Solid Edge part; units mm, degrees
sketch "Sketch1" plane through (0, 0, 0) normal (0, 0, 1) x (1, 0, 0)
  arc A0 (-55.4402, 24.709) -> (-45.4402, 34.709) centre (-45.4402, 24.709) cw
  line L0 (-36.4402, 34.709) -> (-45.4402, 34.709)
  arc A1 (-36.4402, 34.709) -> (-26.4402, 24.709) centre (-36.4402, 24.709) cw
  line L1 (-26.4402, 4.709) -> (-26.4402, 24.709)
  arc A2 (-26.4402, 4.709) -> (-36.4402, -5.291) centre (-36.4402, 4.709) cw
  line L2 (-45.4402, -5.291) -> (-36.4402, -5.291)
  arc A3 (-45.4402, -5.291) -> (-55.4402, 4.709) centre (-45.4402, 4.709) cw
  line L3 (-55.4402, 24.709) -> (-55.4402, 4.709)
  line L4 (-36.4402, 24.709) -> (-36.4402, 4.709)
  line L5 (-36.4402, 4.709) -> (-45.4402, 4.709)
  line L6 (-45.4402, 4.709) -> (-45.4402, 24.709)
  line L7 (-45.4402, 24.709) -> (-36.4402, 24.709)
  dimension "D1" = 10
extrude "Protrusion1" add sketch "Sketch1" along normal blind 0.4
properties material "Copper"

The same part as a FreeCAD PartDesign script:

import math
import FreeCAD as App
import Part
import Sketcher

doc = App.newDocument("Part")
body = doc.addObject("PartDesign::Body", "Body")

# Sketch on XY plane
sketch1 = body.newObject("Sketcher::SketchObject", "Sketch")
sketch1.AttachmentSupport = (doc.getObject("XY_Plane"), [""])
sketch1.MapMode = "FlatFace"
sketch1.addGeometry(Part.ArcOfCircle(Part.Circle(App.Vector(-45.4402, 24.709, 0), App.Vector(0, 0, 1), 10), math.radians(90), math.radians(180)), False)
sketch1.addGeometry(Part.LineSegment(App.Vector(-55.4402, 24.709, 0), App.Vector(-55.4402, 4.709, 0)), False)
sketch1.addGeometry(Part.ArcOfCircle(Part.Circle(App.Vector(-45.4402, 4.709, 0), App.Vector(0, 0, 1), 10), math.radians(180), math.radians(270)), False)
sketch1.addGeometry(Part.LineSegment(App.Vector(-45.4402, -5.291, 0), App.Vector(-36.4402, -5.291, 0)), False)
sketch1.addGeometry(Part.ArcOfCircle(Part.Circle(App.Vector(-36.4402, 4.709, 0), App.Vector(0, 0, 1), 10), math.radians(-90), math.radians(0)), False)
sketch1.addGeometry(Part.LineSegment(App.Vector(-26.4402, 4.709, 0), App.Vector(-26.4402, 24.709, 0)), False)
sketch1.addGeometry(Part.ArcOfCircle(Part.Circle(App.Vector(-36.4402, 24.709, 0), App.Vector(0, 0, 1), 10), math.radians(0), math.radians(90)), False)
sketch1.addGeometry(Part.LineSegment(App.Vector(-36.4402, 34.709, 0), App.Vector(-45.4402, 34.709, 0)), False)
sketch1.addGeometry(Part.LineSegment(App.Vector(-45.4402, 24.709, 0), App.Vector(-36.4402, 24.709, 0)), False)
sketch1.addGeometry(Part.LineSegment(App.Vector(-36.4402, 24.709, 0), App.Vector(-36.4402, 4.709, 0)), False)
sketch1.addGeometry(Part.LineSegment(App.Vector(-36.4402, 4.709, 0), App.Vector(-45.4402, 4.709, 0)), False)
sketch1.addGeometry(Part.LineSegment(App.Vector(-45.4402, 4.709, 0), App.Vector(-45.4402, 24.709, 0)), False)
sketch1.addConstraint(Sketcher.Constraint("Tangent", 0, 2, 1, 1))
sketch1.addConstraint(Sketcher.Constraint("Tangent", 1, 2, 2, 1))
sketch1.addConstraint(Sketcher.Constraint("Tangent", 2, 2, 3, 1))
sketch1.addConstraint(Sketcher.Constraint("Tangent", 3, 2, 4, 1))
sketch1.addConstraint(Sketcher.Constraint("Tangent", 4, 2, 5, 1))
sketch1.addConstraint(Sketcher.Constraint("Tangent", 5, 2, 6, 1))
sketch1.addConstraint(Sketcher.Constraint("Tangent", 6, 2, 7, 1))
sketch1.addConstraint(Sketcher.Constraint("Tangent", 7, 2, 0, 1))
sketch1.addConstraint(Sketcher.Constraint("Coincident", 8, 2, 9, 1))
sketch1.addConstraint(Sketcher.Constraint("Coincident", 9, 2, 10, 1))
sketch1.addConstraint(Sketcher.Constraint("Coincident", 10, 2, 11, 1))
sketch1.addConstraint(Sketcher.Constraint("Coincident", 11, 2, 8, 1))
sketch1.addConstraint(Sketcher.Constraint("Vertical", 1))
sketch1.addConstraint(Sketcher.Constraint("Horizontal", 3))
sketch1.addConstraint(Sketcher.Constraint("Vertical", 5))
sketch1.addConstraint(Sketcher.Constraint("Horizontal", 7))
sketch1.addConstraint(Sketcher.Constraint("Horizontal", 8))
sketch1.addConstraint(Sketcher.Constraint("Vertical", 9))
sketch1.addConstraint(Sketcher.Constraint("Horizontal", 10))
sketch1.addConstraint(Sketcher.Constraint("Vertical", 11))
sketch1.addConstraint(Sketcher.Constraint("Coincident", 8, 2, 6, 3))
sketch1.addConstraint(Sketcher.Constraint("Coincident", 9, 2, 4, 3))
sketch1.addConstraint(Sketcher.Constraint("Coincident", 10, 2, 2, 3))
sketch1.addConstraint(Sketcher.Constraint("Equal", 0, 2))
sketch1.addConstraint(Sketcher.Constraint("Radius", 0, 10.0))
sketch1.addConstraint(Sketcher.Constraint("DistanceX", 3, 1, 3, 2, 9.0))
sketch1.addConstraint(Sketcher.Constraint("DistanceY", 1, 2, 1, 1, 20.0))
sketch1.addConstraint(Sketcher.Constraint("DistanceY", -1, 1, 0, 3, 24.709))
sketch1.addConstraint(Sketcher.Constraint("DistanceX", 0, 3, -1, 1, 45.4402))
pad1 = body.newObject("PartDesign::Pad", "Pad")
pad1.Profile = sketch1
pad1.Length = 0.4

doc.recompute()
